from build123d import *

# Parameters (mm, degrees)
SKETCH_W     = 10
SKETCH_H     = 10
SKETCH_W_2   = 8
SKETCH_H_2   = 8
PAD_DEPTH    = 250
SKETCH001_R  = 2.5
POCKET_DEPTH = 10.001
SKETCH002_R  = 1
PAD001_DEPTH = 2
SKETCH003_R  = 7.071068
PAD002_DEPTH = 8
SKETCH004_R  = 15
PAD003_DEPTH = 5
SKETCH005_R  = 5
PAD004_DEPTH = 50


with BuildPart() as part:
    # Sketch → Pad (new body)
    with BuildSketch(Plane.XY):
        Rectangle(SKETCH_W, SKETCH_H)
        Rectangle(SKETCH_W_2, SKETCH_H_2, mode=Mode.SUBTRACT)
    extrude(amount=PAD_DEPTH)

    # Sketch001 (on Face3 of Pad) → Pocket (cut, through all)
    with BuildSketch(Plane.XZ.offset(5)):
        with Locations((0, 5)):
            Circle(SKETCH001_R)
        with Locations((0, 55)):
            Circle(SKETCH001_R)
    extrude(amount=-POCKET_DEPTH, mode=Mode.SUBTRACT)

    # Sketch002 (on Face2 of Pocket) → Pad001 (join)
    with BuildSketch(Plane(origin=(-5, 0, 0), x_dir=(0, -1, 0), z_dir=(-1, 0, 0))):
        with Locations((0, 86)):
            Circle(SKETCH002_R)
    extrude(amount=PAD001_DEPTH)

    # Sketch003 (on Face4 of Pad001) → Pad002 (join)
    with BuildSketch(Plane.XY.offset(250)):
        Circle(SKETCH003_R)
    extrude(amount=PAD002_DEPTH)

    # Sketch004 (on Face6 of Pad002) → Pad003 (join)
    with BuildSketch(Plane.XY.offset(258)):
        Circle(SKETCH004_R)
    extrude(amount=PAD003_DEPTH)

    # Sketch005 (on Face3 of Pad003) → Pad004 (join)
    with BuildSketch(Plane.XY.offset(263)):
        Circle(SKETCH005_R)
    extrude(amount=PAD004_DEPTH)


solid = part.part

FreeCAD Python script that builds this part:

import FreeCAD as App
import Part
import Sketcher

doc = App.newDocument("Part")
body = doc.addObject("PartDesign::Body", "Body")

# Sketch on XY plane
sketch1 = body.newObject("Sketcher::SketchObject", "Sketch")
sketch1.AttachmentSupport = (doc.getObject("XY_Plane"), [""])
sketch1.MapMode = "FlatFace"
sketch1.addGeometry([
    Part.LineSegment(App.Vector(-5, 5, 0), App.Vector(-5, -5, 0)),  # 0
    Part.LineSegment(App.Vector(-5, -5, 0), App.Vector(5, -5, 0)),  # 1
    Part.LineSegment(App.Vector(5, -5, 0), App.Vector(5, 5, 0)),  # 2
    Part.LineSegment(App.Vector(5, 5, 0), App.Vector(-5, 5, 0)),  # 3
    Part.LineSegment(App.Vector(4, -4, 0), App.Vector(-4, -4, 0)),  # 4
    Part.LineSegment(App.Vector(-4, -4, 0), App.Vector(-4, 4, 0)),  # 5
    Part.LineSegment(App.Vector(-4, 4, 0), App.Vector(4, 4, 0)),  # 6
    Part.LineSegment(App.Vector(4, 4, 0), App.Vector(4, -4, 0)),  # 7
], False)
sketch1.addConstraint([
    Sketcher.Constraint("Coincident", 0, 2, 1, 1),
    Sketcher.Constraint("Coincident", 1, 2, 2, 1),
    Sketcher.Constraint("Coincident", 2, 2, 3, 1),
    Sketcher.Constraint("Coincident", 3, 2, 0, 1),
    Sketcher.Constraint("Coincident", 4, 2, 5, 1),
    Sketcher.Constraint("Coincident", 5, 2, 6, 1),
    Sketcher.Constraint("Coincident", 6, 2, 7, 1),
    Sketcher.Constraint("Coincident", 7, 2, 4, 1),
    Sketcher.Constraint("Vertical", 0),
    Sketcher.Constraint("Horizontal", 1),
    Sketcher.Constraint("Vertical", 2),
    Sketcher.Constraint("Horizontal", 3),
    Sketcher.Constraint("Horizontal", 4),
    Sketcher.Constraint("Vertical", 5),
    Sketcher.Constraint("Horizontal", 6),
    Sketcher.Constraint("Vertical", 7),
    Sketcher.Constraint("Symmetric", 0, 2, 2, 2, -1, 1),
    Sketcher.Constraint("Symmetric", 4, 2, 6, 2, -1, 1),
    Sketcher.Constraint("Equal", 3, 0),
    Sketcher.Constraint("Equal", 6, 5),
    Sketcher.Constraint("DistanceX", 1, 1, 1, 2, 10.0),
    Sketcher.Constraint("DistanceX", 4, 2, 4, 1, 8.0),
])
pad1 = body.newObject("PartDesign::Pad", "Pad")
pad1.Profile = sketch1
pad1.Length = 250

# Sketch on XZ plane
sketch2 = body.newObject("Sketcher::SketchObject", "Sketch001")
sketch2.AttachmentSupport = (doc.getObject("XZ_Plane"), [""])
sketch2.MapMode = "FlatFace"
sketch2.AttachmentOffset = App.Placement(App.Vector(0, 0, 5), App.Rotation())
sketch2.addGeometry([
    Part.Circle(App.Vector(0, 5, 0), App.Vector(0, 0, 1), 2.5),
    Part.Circle(App.Vector(0, 55, 0), App.Vector(0, 0, 1), 2.5),
], False)
sketch2.addConstraint([
    Sketcher.Constraint("Equal", 0, 1),
    Sketcher.Constraint("PointOnObject", 0, 3, -2),
    Sketcher.Constraint("PointOnObject", 1, 3, -2),
    Sketcher.Constraint("Diameter", 0, 5.0),
    Sketcher.Constraint("DistanceY", -1, 1, 0, 3, 5.0),
    Sketcher.Constraint("DistanceY", -1, 1, 1, 3, 55.0),
])
pocket1 = body.newObject("PartDesign::Pocket", "Pocket")
pocket1.Profile = sketch2
pocket1.Type = "ThroughAll"

# Sketch on YZ plane
sketch3 = body.newObject("Sketcher::SketchObject", "Sketch002")
sketch3.AttachmentSupport = (doc.getObject("YZ_Plane"), [""])
sketch3.MapMode = "FlatFace"
sketch3.AttachmentOffset = App.Placement(App.Vector(0, 0, -5), App.Rotation())
sketch3.addGeometry(Part.Circle(App.Vector(0, 86, 0), App.Vector(0, 0, 1), 1), False)
sketch3.addConstraint([
    Sketcher.Constraint("PointOnObject", 0, 3, -2),
    Sketcher.Constraint("Diameter", 0, 2.0),
    Sketcher.Constraint("DistanceY", -1, 1, 0, 3, 86.0),
])
pad2 = body.newObject("PartDesign::Pad", "Pad001")
pad2.Profile = sketch3
pad2.Length = 2
pad2.Reversed = True

# Sketch on XY plane
sketch4 = body.newObject("Sketcher::SketchObject", "Sketch003")
sketch4.AttachmentSupport = (doc.getObject("XY_Plane"), [""])
sketch4.MapMode = "FlatFace"
sketch4.AttachmentOffset = App.Placement(App.Vector(0, 0, 250), App.Rotation())
sketch4.addGeometry(Part.Circle(App.Vector(0, 0, 0), App.Vector(0, 0, 1), 7.071068), False)
sketch4.addConstraint([
    Sketcher.Constraint("Coincident", 0, 3, -1, 1),
    Sketcher.Constraint("Diameter", 0, 14.142136),
])
pad3 = body.newObject("PartDesign::Pad", "Pad002")
pad3.Profile = sketch4
pad3.Length = 8

# Sketch on XY plane
sketch5 = body.newObject("Sketcher::SketchObject", "Sketch004")
sketch5.AttachmentSupport = (doc.getObject("XY_Plane"), [""])
sketch5.MapMode = "FlatFace"
sketch5.AttachmentOffset = App.Placement(App.Vector(0, 0, 258), App.Rotation())
sketch5.addGeometry(Part.Circle(App.Vector(0, 0, 0), App.Vector(0, 0, 1), 15), False)
sketch5.addConstraint([
    Sketcher.Constraint("Coincident", 0, 3, -1, 1),
    Sketcher.Constraint("Diameter", 0, 30.0),
])
pad4 = body.newObject("PartDesign::Pad", "Pad003")
pad4.Profile = sketch5
pad4.Length = 5

# Sketch on XY plane
sketch6 = body.newObject("Sketcher::SketchObject", "Sketch005")
sketch6.AttachmentSupport = (doc.getObject("XY_Plane"), [""])
sketch6.MapMode = "FlatFace"
sketch6.AttachmentOffset = App.Placement(App.Vector(0, 0, 263), App.Rotation())
sketch6.addGeometry(Part.Circle(App.Vector(0, 0, 0), App.Vector(0, 0, 1), 5), False)
sketch6.addConstraint([
    Sketcher.Constraint("Coincident", 0, 3, -1, 1),
    Sketcher.Constraint("Diameter", 0, 10.0),
])
pad5 = body.newObject("PartDesign::Pad", "Pad004")
pad5.Profile = sketch6
pad5.Length = 50

doc.recompute()
